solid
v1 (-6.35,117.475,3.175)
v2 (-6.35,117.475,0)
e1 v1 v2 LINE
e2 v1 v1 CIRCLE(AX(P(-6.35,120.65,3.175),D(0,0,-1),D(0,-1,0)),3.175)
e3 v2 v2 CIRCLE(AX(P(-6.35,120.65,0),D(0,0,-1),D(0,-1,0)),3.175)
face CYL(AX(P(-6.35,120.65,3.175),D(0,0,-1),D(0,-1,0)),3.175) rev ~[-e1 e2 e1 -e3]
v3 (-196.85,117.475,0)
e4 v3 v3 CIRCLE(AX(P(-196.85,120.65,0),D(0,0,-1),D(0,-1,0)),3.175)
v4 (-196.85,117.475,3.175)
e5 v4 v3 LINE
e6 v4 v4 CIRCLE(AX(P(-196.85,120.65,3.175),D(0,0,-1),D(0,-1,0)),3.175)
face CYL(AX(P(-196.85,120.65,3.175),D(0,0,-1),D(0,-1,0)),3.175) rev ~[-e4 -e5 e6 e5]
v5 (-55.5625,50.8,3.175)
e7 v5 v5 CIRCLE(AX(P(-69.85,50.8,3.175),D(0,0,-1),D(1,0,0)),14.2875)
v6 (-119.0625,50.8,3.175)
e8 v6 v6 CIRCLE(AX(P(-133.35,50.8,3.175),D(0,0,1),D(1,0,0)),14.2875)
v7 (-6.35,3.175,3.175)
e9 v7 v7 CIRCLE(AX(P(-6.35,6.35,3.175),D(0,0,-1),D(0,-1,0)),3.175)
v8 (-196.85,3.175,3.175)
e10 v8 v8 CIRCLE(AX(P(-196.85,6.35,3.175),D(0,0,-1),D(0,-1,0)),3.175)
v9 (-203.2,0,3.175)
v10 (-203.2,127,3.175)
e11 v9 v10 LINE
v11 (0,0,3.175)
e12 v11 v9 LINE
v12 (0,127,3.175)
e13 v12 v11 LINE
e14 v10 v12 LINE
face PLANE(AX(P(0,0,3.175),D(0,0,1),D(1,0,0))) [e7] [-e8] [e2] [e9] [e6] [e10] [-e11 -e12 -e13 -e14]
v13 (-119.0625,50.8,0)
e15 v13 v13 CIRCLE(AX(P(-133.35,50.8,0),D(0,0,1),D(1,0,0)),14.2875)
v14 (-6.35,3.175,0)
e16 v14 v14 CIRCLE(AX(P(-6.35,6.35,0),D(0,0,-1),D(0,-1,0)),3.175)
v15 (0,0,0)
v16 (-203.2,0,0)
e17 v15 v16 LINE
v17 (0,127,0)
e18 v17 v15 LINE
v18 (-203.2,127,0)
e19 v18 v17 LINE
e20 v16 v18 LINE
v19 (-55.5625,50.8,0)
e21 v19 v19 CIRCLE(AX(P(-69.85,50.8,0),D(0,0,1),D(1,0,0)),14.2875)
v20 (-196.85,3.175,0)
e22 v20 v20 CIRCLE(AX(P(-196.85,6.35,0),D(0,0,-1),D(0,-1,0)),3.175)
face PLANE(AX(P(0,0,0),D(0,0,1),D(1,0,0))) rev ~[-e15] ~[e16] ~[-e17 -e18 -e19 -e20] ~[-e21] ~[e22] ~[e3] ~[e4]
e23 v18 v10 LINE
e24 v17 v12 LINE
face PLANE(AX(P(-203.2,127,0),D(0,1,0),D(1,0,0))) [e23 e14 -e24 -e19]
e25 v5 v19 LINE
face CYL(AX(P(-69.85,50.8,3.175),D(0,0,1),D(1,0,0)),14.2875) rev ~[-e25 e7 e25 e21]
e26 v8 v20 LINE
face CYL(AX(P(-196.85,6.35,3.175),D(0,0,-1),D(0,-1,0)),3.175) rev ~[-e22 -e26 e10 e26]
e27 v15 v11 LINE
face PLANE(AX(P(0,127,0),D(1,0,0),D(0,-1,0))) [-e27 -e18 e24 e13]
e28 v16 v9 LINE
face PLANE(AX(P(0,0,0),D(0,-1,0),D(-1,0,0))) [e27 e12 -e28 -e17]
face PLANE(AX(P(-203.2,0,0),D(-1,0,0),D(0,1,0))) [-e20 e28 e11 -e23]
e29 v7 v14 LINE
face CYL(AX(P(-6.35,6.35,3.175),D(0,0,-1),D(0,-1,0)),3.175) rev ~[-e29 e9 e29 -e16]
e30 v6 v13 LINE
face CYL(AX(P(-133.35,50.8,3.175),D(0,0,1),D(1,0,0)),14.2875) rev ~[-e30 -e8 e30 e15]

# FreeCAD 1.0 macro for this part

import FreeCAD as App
import Part
import Sketcher

V = App.Vector
Q = App.Units.Quantity


def add_polygon(sketch, points):
    """Adds a closed chain of lines whose ends are joined by coincident constraints."""
    first, n = sketch.GeometryCount, len(points)
    for a, b in zip(points, points[1:] + points[:1]):
        sketch.addGeometry(Part.LineSegment(App.Vector(*a, 0), App.Vector(*b, 0)), False)
    for i in range(n):
        sketch.addConstraint(Sketcher.Constraint("Coincident", first + i, 2, first + (i + 1) % n, 1))

doc = App.newDocument("Part")
body = doc.addObject("PartDesign::Body", "Body")

# Sketch on XY plane
sketch1 = doc.addObject("Sketcher::SketchObject", "Sketch")
body.addObject(sketch1)
sketch1.AttachmentSupport = (doc.XY_Plane, [""])
sketch1.MapMode = "FlatFace"
add_polygon(sketch1, [(-203, 0), (0, 0), (0, 127), (-203, 127)])  # lines 0-3
sketch1.addConstraint(Sketcher.Constraint("Horizontal", 0))
sketch1.addConstraint(Sketcher.Constraint("Vertical", 1))
sketch1.addConstraint(Sketcher.Constraint("Horizontal", 2))
sketch1.addConstraint(Sketcher.Constraint("Vertical", 3))
sketch1.addConstraint(Sketcher.Constraint("Coincident", 0, 2, -1, 1))
sketch1.addConstraint(Sketcher.Constraint("DistanceX", 0, 1, 0, 2, Q("8 in")))
sketch1.addConstraint(Sketcher.Constraint("DistanceY", 1, 1, 1, 2, Q("5 in")))
pad1 = doc.addObject("PartDesign::Pad", "Pad")
body.addObject(pad1)
pad1.Profile = sketch1
pad1.Length = Q("0.125 in")

# Sketch on XY plane
sketch2 = doc.addObject("Sketcher::SketchObject", "Sketch001")
body.addObject(sketch2)
sketch2.AttachmentSupport = (doc.XY_Plane, [""])
sketch2.MapMode = "FlatFace"
sketch2.AttachmentOffset = App.Placement(V(0, 0, 0.125 * 25.4), App.Rotation())
sketch2.addGeometry(Part.Circle(V(-70, 51, 0), V(0, 0, 1), 14), False)
sketch2.addGeometry(Part.Circle(V(-133, 51, 0), V(0, 0, 1), 14), False)
sketch2.addConstraint(Sketcher.Constraint("Equal", 0, 1))
sketch2.addConstraint(Sketcher.Constraint("Horizontal", 0, 3, 1, 3))
sketch2.addConstraint(Sketcher.Constraint("Diameter", 0, Q("1.125 in")))
sketch2.addConstraint(Sketcher.Constraint("DistanceY", -1, 1, 0, 3, Q("2 in")))
sketch2.addConstraint(Sketcher.Constraint("DistanceX", 1, 3, 0, 3, Q("2.5 in")))
sketch2.addConstraint(Sketcher.Constraint("DistanceX", 0, 3, -1, 1, Q("2.75 in")))
pocket1 = doc.addObject("PartDesign::Pocket", "Pocket")
body.addObject(pocket1)
pocket1.Profile = sketch2
pocket1.Length = Q("0.125 in")

# Sketch on XY plane
sketch3 = doc.addObject("Sketcher::SketchObject", "Sketch002")
body.addObject(sketch3)
sketch3.AttachmentSupport = (doc.XY_Plane, [""])
sketch3.MapMode = "FlatFace"
sketch3.AttachmentOffset = App.Placement(V(0, 0, 0.125 * 25.4), App.Rotation())
sketch3.addGeometry(Part.Circle(V(-196.8, 120.7, 0), V(0, 0, 1), 3.2), False)
sketch3.addGeometry(Part.Circle(V(-196.8, 6.3, 0), V(0, 0, 1), 3.2), False)
sketch3.addGeometry(Part.Circle(V(-6.3, 6.3, 0), V(0, 0, 1), 3.2), False)
sketch3.addGeometry(Part.Circle(V(-6.3, 120.7, 0), V(0, 0, 1), 3.2), False)
sketch3.addConstraint(Sketcher.Constraint("Equal", 0, 1))
sketch3.addConstraint(Sketcher.Constraint("Equal", 1, 2))
sketch3.addConstraint(Sketcher.Constraint("Equal", 2, 3))
sketch3.addConstraint(Sketcher.Constraint("Horizontal", 1, 3, 2, 3))
sketch3.addConstraint(Sketcher.Constraint("Horizontal", 0, 3, 3, 3))
sketch3.addConstraint(Sketcher.Constraint("Vertical", 0, 3, 1, 3))
sketch3.addConstraint(Sketcher.Constraint("Vertical", 2, 3, 3, 3))
sketch3.addConstraint(Sketcher.Constraint("Diameter", 0, Q("0.25 in")))
sketch3.addConstraint(Sketcher.Constraint("DistanceY", 1, 3, 0, 3, Q("4.5 in")))
sketch3.addConstraint(Sketcher.Constraint("DistanceX", 1, 3, 2, 3, Q("7.5 in")))
sketch3.addConstraint(Sketcher.Constraint("DistanceX", 0, 3, -1, 1, Q("7.75 in")))
sketch3.addConstraint(Sketcher.Constraint("DistanceY", -1, 1, 0, 3, Q("4.75 in")))
doc.recompute()
hole = doc.addObject("PartDesign::Hole", "Hole")
body.addObject(hole)
hole.Profile = sketch3
hole.ThreadType = "None"
hole.Diameter = Q("0.25 in")
hole.DepthType = "ThroughAll"

doc.recompute()
